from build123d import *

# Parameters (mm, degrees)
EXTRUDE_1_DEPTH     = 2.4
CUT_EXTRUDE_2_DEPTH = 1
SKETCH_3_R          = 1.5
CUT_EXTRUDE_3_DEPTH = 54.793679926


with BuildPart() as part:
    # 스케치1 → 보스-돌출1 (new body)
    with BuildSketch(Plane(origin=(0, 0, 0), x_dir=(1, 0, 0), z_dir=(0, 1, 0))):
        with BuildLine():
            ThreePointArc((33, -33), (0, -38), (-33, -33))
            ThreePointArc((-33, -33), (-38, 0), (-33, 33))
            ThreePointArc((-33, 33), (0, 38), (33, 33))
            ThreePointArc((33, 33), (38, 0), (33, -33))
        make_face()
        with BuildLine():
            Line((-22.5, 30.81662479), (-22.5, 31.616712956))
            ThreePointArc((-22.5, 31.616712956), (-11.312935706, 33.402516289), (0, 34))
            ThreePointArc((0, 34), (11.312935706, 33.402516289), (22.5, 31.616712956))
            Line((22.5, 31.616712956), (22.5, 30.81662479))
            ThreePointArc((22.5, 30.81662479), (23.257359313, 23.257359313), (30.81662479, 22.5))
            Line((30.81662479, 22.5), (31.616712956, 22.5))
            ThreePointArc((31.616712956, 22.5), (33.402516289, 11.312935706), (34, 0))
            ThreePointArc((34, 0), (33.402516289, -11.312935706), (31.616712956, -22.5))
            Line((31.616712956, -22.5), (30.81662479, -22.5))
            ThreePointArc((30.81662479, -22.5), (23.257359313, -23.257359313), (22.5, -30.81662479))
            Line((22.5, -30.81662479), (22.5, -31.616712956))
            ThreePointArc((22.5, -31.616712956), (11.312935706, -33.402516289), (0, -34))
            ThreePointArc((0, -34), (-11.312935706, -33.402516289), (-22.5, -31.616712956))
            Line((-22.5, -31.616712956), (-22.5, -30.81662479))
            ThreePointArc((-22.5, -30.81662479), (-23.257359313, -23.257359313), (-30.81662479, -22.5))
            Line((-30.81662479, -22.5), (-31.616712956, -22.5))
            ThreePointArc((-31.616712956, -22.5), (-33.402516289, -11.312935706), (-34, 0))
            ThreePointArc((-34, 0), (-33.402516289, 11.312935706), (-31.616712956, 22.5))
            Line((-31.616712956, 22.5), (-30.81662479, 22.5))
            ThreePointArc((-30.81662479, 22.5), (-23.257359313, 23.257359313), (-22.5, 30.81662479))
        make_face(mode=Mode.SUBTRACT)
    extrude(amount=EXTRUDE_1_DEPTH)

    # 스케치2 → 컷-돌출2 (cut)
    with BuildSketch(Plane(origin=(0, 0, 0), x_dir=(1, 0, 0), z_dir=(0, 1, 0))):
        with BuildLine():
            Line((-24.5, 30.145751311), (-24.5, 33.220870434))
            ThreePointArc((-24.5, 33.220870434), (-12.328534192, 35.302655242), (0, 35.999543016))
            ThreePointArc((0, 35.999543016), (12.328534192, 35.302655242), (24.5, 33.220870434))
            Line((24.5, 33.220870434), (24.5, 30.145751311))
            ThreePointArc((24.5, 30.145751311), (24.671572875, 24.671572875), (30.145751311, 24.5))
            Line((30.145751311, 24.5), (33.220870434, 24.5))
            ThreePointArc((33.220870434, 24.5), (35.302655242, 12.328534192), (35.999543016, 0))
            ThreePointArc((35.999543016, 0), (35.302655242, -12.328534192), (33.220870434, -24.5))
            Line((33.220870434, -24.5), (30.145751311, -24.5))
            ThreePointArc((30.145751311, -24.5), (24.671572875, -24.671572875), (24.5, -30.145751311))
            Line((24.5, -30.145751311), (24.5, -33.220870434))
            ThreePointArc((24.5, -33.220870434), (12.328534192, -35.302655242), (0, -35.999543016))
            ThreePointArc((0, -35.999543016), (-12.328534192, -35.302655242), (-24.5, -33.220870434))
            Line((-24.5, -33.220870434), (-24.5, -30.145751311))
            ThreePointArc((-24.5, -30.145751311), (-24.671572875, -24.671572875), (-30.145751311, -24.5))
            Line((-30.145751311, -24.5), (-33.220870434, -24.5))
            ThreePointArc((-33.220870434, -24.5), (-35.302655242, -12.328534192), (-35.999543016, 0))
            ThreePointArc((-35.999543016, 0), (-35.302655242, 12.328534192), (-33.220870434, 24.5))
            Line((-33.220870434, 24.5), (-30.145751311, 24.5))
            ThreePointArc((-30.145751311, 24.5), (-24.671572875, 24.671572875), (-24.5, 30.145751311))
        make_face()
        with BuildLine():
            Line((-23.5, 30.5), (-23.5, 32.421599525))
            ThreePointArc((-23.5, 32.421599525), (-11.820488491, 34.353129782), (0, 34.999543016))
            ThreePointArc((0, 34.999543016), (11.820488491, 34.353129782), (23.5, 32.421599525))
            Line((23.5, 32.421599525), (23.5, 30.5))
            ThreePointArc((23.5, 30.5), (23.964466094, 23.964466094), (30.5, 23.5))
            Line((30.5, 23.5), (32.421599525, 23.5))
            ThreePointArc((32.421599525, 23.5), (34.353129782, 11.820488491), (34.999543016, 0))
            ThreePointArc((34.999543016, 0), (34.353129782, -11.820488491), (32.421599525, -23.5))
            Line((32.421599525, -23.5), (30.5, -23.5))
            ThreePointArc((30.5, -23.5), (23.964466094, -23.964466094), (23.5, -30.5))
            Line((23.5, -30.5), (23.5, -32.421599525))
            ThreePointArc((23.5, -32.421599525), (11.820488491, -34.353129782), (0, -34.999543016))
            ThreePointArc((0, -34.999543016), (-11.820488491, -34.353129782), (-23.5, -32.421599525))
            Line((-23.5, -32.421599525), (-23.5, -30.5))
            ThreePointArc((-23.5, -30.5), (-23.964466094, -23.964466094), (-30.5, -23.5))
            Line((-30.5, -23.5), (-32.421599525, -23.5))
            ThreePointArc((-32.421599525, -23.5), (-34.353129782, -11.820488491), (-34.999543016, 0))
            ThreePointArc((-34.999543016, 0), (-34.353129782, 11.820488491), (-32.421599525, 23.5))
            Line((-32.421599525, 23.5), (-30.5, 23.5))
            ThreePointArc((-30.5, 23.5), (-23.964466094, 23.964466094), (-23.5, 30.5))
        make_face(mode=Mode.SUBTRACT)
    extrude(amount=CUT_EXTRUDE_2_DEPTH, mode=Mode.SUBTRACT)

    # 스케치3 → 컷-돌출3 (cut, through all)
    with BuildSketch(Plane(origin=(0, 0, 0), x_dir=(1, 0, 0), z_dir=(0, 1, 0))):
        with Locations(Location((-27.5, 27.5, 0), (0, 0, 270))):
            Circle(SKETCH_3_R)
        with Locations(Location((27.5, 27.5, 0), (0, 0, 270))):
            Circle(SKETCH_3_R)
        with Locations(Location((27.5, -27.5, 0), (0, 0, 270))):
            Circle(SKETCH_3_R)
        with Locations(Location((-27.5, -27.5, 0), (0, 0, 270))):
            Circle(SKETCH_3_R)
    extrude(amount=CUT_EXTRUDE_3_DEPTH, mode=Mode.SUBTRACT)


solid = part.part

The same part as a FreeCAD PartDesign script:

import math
import FreeCAD as App
import Part
import Sketcher

V = App.Vector
Q = App.Units.Quantity

doc = App.newDocument("Part")
body = doc.addObject("PartDesign::Body", "Body")

# Sketch on XZ plane
sketch1 = body.newObject("Sketcher::SketchObject", "Sketch")
sketch1.AttachmentSupport = (doc.getObject("XZ_Plane"), [""])
sketch1.MapMode = "FlatFace"
sketch1.addGeometry([
    Part.ArcOfCircle(Part.Circle(V(0, -73.4, 0), V(0, 0, 1), 111.4), math.radians(72.768704), math.radians(107.231296)),  # 0
    Part.ArcOfCircle(Part.Circle(V(-73.4, 0, 0), V(0, 0, 1), 111.4), math.radians(-17.231296), math.radians(17.231296)),  # 1
    Part.ArcOfCircle(Part.Circle(V(0, 73.4, 0), V(0, 0, 1), 111.4), math.radians(-107.231296), math.radians(-72.768704)),  # 2
    Part.ArcOfCircle(Part.Circle(V(73.4, 0, 0), V(0, 0, 1), 111.4), math.radians(162.768704), math.radians(197.231296)),  # 3
    Part.LineSegment(V(-22.5, -30.816625, 0), V(-22.5, -31.616713, 0)),  # 4
    Part.ArcOfCircle(Part.Circle(V(0, 73.4, 0), V(0, 0, 1), 107.4), math.radians(-102.092889), math.radians(-90)),  # 5
    Part.ArcOfCircle(Part.Circle(V(0, 73.4, 0), V(0, 0, 1), 107.4), math.radians(-90), math.radians(-77.907111)),  # 6
    Part.LineSegment(V(22.5, -31.616713, 0), V(22.5, -30.816625, 0)),  # 7
    Part.ArcOfCircle(Part.Circle(V(27.5, -27.5, 0), V(0, 0, 1), 6), math.radians(56.44269), math.radians(213.55731)),  # 8
    Part.LineSegment(V(30.816625, -22.5, 0), V(31.616713, -22.5, 0)),  # 9
    Part.ArcOfCircle(Part.Circle(V(-73.4, 0, 0), V(0, 0, 1), 107.4), math.radians(-12.092889), math.radians(0)),  # 10
    Part.ArcOfCircle(Part.Circle(V(-73.4, 0, 0), V(0, 0, 1), 107.4), math.radians(0), math.radians(12.092889)),  # 11
    Part.LineSegment(V(31.616713, 22.5, 0), V(30.816625, 22.5, 0)),  # 12
    Part.ArcOfCircle(Part.Circle(V(27.5, 27.5, 0), V(0, 0, 1), 6), math.radians(146.44269), math.radians(303.55731)),  # 13
    Part.LineSegment(V(22.5, 30.816625, 0), V(22.5, 31.616713, 0)),  # 14
    Part.ArcOfCircle(Part.Circle(V(0, -73.4, 0), V(0, 0, 1), 107.4), math.radians(77.907111), math.radians(90)),  # 15
    Part.ArcOfCircle(Part.Circle(V(0, -73.4, 0), V(0, 0, 1), 107.4), math.radians(90), math.radians(102.092889)),  # 16
    Part.LineSegment(V(-22.5, 31.616713, 0), V(-22.5, 30.816625, 0)),  # 17
    Part.ArcOfCircle(Part.Circle(V(-27.5, 27.5, 0), V(0, 0, 1), 6), math.radians(-123.55731), math.radians(33.55731)),  # 18
    Part.LineSegment(V(-30.816625, 22.5, 0), V(-31.616713, 22.5, 0)),  # 19
    Part.ArcOfCircle(Part.Circle(V(73.4, 0, 0), V(0, 0, 1), 107.4), math.radians(167.907111), math.radians(180)),  # 20
    Part.ArcOfCircle(Part.Circle(V(73.4, 0, 0), V(0, 0, 1), 107.4), math.radians(-180), math.radians(-167.907111)),  # 21
    Part.LineSegment(V(-31.616713, -22.5, 0), V(-30.816625, -22.5, 0)),  # 22
    Part.ArcOfCircle(Part.Circle(V(-27.5, -27.5, 0), V(0, 0, 1), 6), math.radians(-33.55731), math.radians(123.55731)),  # 23
], False)
sketch1.addConstraint([
    Sketcher.Constraint("Coincident", 0, 1, 1, 2),
    Sketcher.Constraint("Coincident", 1, 1, 2, 2),
    Sketcher.Constraint("Coincident", 2, 1, 3, 2),
    Sketcher.Constraint("Coincident", 3, 1, 0, 2),
    Sketcher.Constraint("Coincident", 4, 2, 5, 1),
    Sketcher.Constraint("Tangent", 5, 2, 6, 1),
    Sketcher.Constraint("Coincident", 6, 2, 7, 1),
    Sketcher.Constraint("Coincident", 7, 2, 8, 2),
    Sketcher.Constraint("Coincident", 8, 1, 9, 1),
    Sketcher.Constraint("Coincident", 9, 2, 10, 1),
    Sketcher.Constraint("Tangent", 10, 2, 11, 1),
    Sketcher.Constraint("Coincident", 11, 2, 12, 1),
    Sketcher.Constraint("Coincident", 12, 2, 13, 2),
    Sketcher.Constraint("Coincident", 13, 1, 14, 1),
    Sketcher.Constraint("Coincident", 14, 2, 15, 1),
    Sketcher.Constraint("Tangent", 15, 2, 16, 1),
    Sketcher.Constraint("Coincident", 16, 2, 17, 1),
    Sketcher.Constraint("Coincident", 17, 2, 18, 2),
    Sketcher.Constraint("Coincident", 18, 1, 19, 1),
    Sketcher.Constraint("Coincident", 19, 2, 20, 1),
    Sketcher.Constraint("Tangent", 20, 2, 21, 1),
    Sketcher.Constraint("Coincident", 21, 2, 22, 1),
    Sketcher.Constraint("Coincident", 22, 2, 23, 2),
    Sketcher.Constraint("Coincident", 23, 1, 4, 1),
    Sketcher.Constraint("Vertical", 4),
    Sketcher.Constraint("Vertical", 7),
    Sketcher.Constraint("Horizontal", 9),
    Sketcher.Constraint("Horizontal", 12),
    Sketcher.Constraint("Vertical", 14),
    Sketcher.Constraint("Vertical", 17),
    Sketcher.Constraint("Horizontal", 19),
    Sketcher.Constraint("Horizontal", 22),
    Sketcher.Constraint("Coincident", 5, 3, 2, 3),
    Sketcher.Constraint("Coincident", 10, 3, 1, 3),
    Sketcher.Constraint("Coincident", 15, 3, 0, 3),
    Sketcher.Constraint("Coincident", 20, 3, 3, 3),
    Sketcher.Constraint("Equal", 0, 1),
    Sketcher.Constraint("Equal", 1, 2),
    Sketcher.Constraint("Equal", 2, 3),
    Sketcher.Constraint("Equal", 5, 6),
    Sketcher.Constraint("Equal", 6, 10),
    Sketcher.Constraint("Equal", 10, 11),
    Sketcher.Constraint("Equal", 8, 13),
    Sketcher.Constraint("Equal", 11, 15),
    Sketcher.Constraint("Equal", 15, 16),
    Sketcher.Constraint("Equal", 13, 18),
    Sketcher.Constraint("Equal", 16, 20),
    Sketcher.Constraint("Equal", 20, 21),
    Sketcher.Constraint("Equal", 18, 23),
    Sketcher.Constraint("Symmetric", 0, 3, 2, 3, -1, 1),
    Sketcher.Constraint("Symmetric", 1, 3, 3, 3, -1, 1),
    Sketcher.Constraint("Symmetric", 8, 3, 18, 3, -1, 1),
    Sketcher.Constraint("Symmetric", 13, 3, 23, 3, -1, 1),
    Sketcher.Constraint("Symmetric", 13, 3, 18, 3, -2),
    Sketcher.Constraint("Symmetric", 1, 1, 2, 1, -2),
    Sketcher.Constraint("PointOnObject", 5, 2, -2),
    Sketcher.Constraint("PointOnObject", 10, 2, -1),
    Sketcher.Constraint("PointOnObject", 15, 2, -2),
    Sketcher.Constraint("PointOnObject", 20, 2, -1),
    Sketcher.Constraint("Horizontal", 4, 2, 6, 2),
    Sketcher.Constraint("Horizontal", 14, 2, 16, 2),
    Sketcher.Constraint("Horizontal", 12, 2, 18, 1),
    Sketcher.Constraint("Horizontal", 9, 2, 21, 2),
    Sketcher.Constraint("Vertical", 9, 2, 11, 2),
    Sketcher.Constraint("Vertical", 7, 2, 13, 1),
    Sketcher.Constraint("Equal", 22, 4),
    Sketcher.Constraint("Radius", 8, Q("6 mm")),
    Sketcher.Constraint("Radius", 0, Q("111.4 mm")),
    Sketcher.Constraint("Radius", 5, Q("107.4 mm")),
    Sketcher.Constraint("DistanceX", -1, 1, 0, 1, Q("33 mm")),
    Sketcher.Constraint("DistanceY", -1, 1, 0, 1, Q("33 mm")),
    Sketcher.Constraint("DistanceY", 8, 3, 13, 3, Q("55 mm")),
    Sketcher.Constraint("DistanceX", 23, 3, 4, 2, Q("5 mm")),
    Sketcher.Constraint("DistanceX", 4, 2, 6, 2, Q("45 mm")),
])
pad1 = body.newObject("PartDesign::Pad", "Pad")
pad1.Profile = sketch1
pad1.Length = 2.4
pad1.Reversed = True

# Sketch on XZ plane
sketch2 = body.newObject("Sketcher::SketchObject", "Sketch001")
sketch2.AttachmentSupport = (doc.getObject("XZ_Plane"), [""])
sketch2.MapMode = "FlatFace"
sketch2.addGeometry([
    Part.LineSegment(V(-24.5, -33.22087, 0), V(-24.5, -30.145751, 0)),  # 0
    Part.ArcOfCircle(Part.Circle(V(-27.5, -27.5, 0), V(0, 0, 1), 4), math.radians(-41.409622), math.radians(131.409622)),  # 1
    Part.LineSegment(V(-30.145751, -24.5, 0), V(-33.22087, -24.5, 0)),  # 2
    Part.ArcOfCircle(Part.Circle(V(73.4, 0, 0), V(0, 0, 1), 109.399543), math.radians(-180), math.radians(-167.058873)),  # 3
    Part.ArcOfCircle(Part.Circle(V(73.4, 0, 0), V(0, 0, 1), 109.399543), math.radians(167.058873), math.radians(180)),  # 4
    Part.LineSegment(V(-33.22087, 24.5, 0), V(-30.145751, 24.5, 0)),  # 5
    Part.ArcOfCircle(Part.Circle(V(-27.5, 27.5, 0), V(0, 0, 1), 4), math.radians(-131.409622), math.radians(41.409622)),  # 6
    Part.LineSegment(V(-24.5, 30.145751, 0), V(-24.5, 33.22087, 0)),  # 7
    Part.ArcOfCircle(Part.Circle(V(0, -73.4, 0), V(0, 0, 1), 109.399543), math.radians(90), math.radians(102.941127)),  # 8
    Part.ArcOfCircle(Part.Circle(V(0, -73.4, 0), V(0, 0, 1), 109.399543), math.radians(77.058873), math.radians(90)),  # 9
    Part.LineSegment(V(24.5, 33.22087, 0), V(24.5, 30.145751, 0)),  # 10
    Part.ArcOfCircle(Part.Circle(V(27.5, 27.5, 0), V(0, 0, 1), 4), math.radians(138.590378), math.radians(311.409622)),  # 11
    Part.LineSegment(V(30.145751, 24.5, 0), V(33.22087, 24.5, 0)),  # 12
    Part.ArcOfCircle(Part.Circle(V(-73.4, 0, 0), V(0, 0, 1), 109.399543), math.radians(0), math.radians(12.941127)),  # 13
    Part.ArcOfCircle(Part.Circle(V(-73.4, 0, 0), V(0, 0, 1), 109.399543), math.radians(-12.941127), math.radians(0)),  # 14
    Part.LineSegment(V(33.22087, -24.5, 0), V(30.145751, -24.5, 0)),  # 15
    Part.ArcOfCircle(Part.Circle(V(27.5, -27.5, 0), V(0, 0, 1), 4), math.radians(48.590378), math.radians(221.409622)),  # 16
    Part.LineSegment(V(24.5, -30.145751, 0), V(24.5, -33.22087, 0)),  # 17
    Part.ArcOfCircle(Part.Circle(V(0, 73.4, 0), V(0, 0, 1), 109.399543), math.radians(-90), math.radians(-77.058873)),  # 18
    Part.ArcOfCircle(Part.Circle(V(0, 73.4, 0), V(0, 0, 1), 109.399543), math.radians(-102.941127), math.radians(-90)),  # 19
    Part.LineSegment(V(-23.5, -30.5, 0), V(-23.5, -32.4216, 0)),  # 20
    Part.ArcOfCircle(Part.Circle(V(0, 73.4, 0), V(0, 0, 1), 108.399543), math.radians(-102.520598), math.radians(-90)),  # 21
    Part.ArcOfCircle(Part.Circle(V(0, 73.4, 0), V(0, 0, 1), 108.399543), math.radians(-90), math.radians(-77.479402)),  # 22
    Part.LineSegment(V(23.5, -32.4216, 0), V(23.5, -30.5, 0)),  # 23
    Part.ArcOfCircle(Part.Circle(V(27.5, -27.5, 0), V(0, 0, 1), 5), math.radians(53.130102), math.radians(216.869898)),  # 24
    Part.LineSegment(V(30.5, -23.5, 0), V(32.4216, -23.5, 0)),  # 25
    Part.ArcOfCircle(Part.Circle(V(-73.4, 0, 0), V(0, 0, 1), 108.399543), math.radians(-12.520598), math.radians(0)),  # 26
    Part.ArcOfCircle(Part.Circle(V(-73.4, 0, 0), V(0, 0, 1), 108.399543), math.radians(0), math.radians(12.520598)),  # 27
    Part.LineSegment(V(32.4216, 23.5, 0), V(30.5, 23.5, 0)),  # 28
    Part.ArcOfCircle(Part.Circle(V(27.5, 27.5, 0), V(0, 0, 1), 5), math.radians(143.130102), math.radians(306.869898)),  # 29
    Part.LineSegment(V(23.5, 30.5, 0), V(23.5, 32.4216, 0)),  # 30
    Part.ArcOfCircle(Part.Circle(V(0, -73.4, 0), V(0, 0, 1), 108.399543), math.radians(77.479402), math.radians(90)),  # 31
    Part.ArcOfCircle(Part.Circle(V(0, -73.4, 0), V(0, 0, 1), 108.399543), math.radians(90), math.radians(102.520598)),  # 32
    Part.LineSegment(V(-23.5, 32.4216, 0), V(-23.5, 30.5, 0)),  # 33
    Part.ArcOfCircle(Part.Circle(V(-27.5, 27.5, 0), V(0, 0, 1), 5), math.radians(-126.869898), math.radians(36.869898)),  # 34
    Part.LineSegment(V(-30.5, 23.5, 0), V(-32.4216, 23.5, 0)),  # 35
    Part.ArcOfCircle(Part.Circle(V(73.4, 0, 0), V(0, 0, 1), 108.399543), math.radians(167.479402), math.radians(180)),  # 36
    Part.ArcOfCircle(Part.Circle(V(73.4, 0, 0), V(0, 0, 1), 108.399543), math.radians(-180), math.radians(-167.479402)),  # 37
    Part.LineSegment(V(-32.4216, -23.5, 0), V(-30.5, -23.5, 0)),  # 38
    Part.ArcOfCircle(Part.Circle(V(-27.5, -27.5, 0), V(0, 0, 1), 5), math.radians(-36.869898), math.radians(126.869898)),  # 39
], False)
sketch2.addConstraint([
    Sketcher.Constraint("Coincident", 0, 2, 1, 1),
    Sketcher.Constraint("Coincident", 1, 2, 2, 1),
    Sketcher.Constraint("Coincident", 2, 2, 3, 2),
    Sketcher.Constraint("Tangent", 3, 1, 4, 2),
    Sketcher.Constraint("Coincident", 4, 1, 5, 1),
    Sketcher.Constraint("Coincident", 5, 2, 6, 1),
    Sketcher.Constraint("Coincident", 6, 2, 7, 1),
    Sketcher.Constraint("Coincident", 7, 2, 8, 2),
    Sketcher.Constraint("Tangent", 8, 1, 9, 2),
    Sketcher.Constraint("Coincident", 9, 1, 10, 1),
    Sketcher.Constraint("Coincident", 10, 2, 11, 1),
    Sketcher.Constraint("Coincident", 11, 2, 12, 1),
    Sketcher.Constraint("Coincident", 12, 2, 13, 2),
    Sketcher.Constraint("Tangent", 13, 1, 14, 2),
    Sketcher.Constraint("Coincident", 14, 1, 15, 1),
    Sketcher.Constraint("Coincident", 15, 2, 16, 1),
    Sketcher.Constraint("Coincident", 16, 2, 17, 1),
    Sketcher.Constraint("Coincident", 17, 2, 18, 2),
    Sketcher.Constraint("Tangent", 18, 1, 19, 2),
    Sketcher.Constraint("Coincident", 19, 1, 0, 1),
    Sketcher.Constraint("Coincident", 20, 2, 21, 1),
    Sketcher.Constraint("Tangent", 21, 2, 22, 1),
    Sketcher.Constraint("Coincident", 22, 2, 23, 1),
    Sketcher.Constraint("Coincident", 23, 2, 24, 2),
    Sketcher.Constraint("Coincident", 24, 1, 25, 1),
    Sketcher.Constraint("Coincident", 25, 2, 26, 1),
    Sketcher.Constraint("Tangent", 26, 2, 27, 1),
    Sketcher.Constraint("Coincident", 27, 2, 28, 1),
    Sketcher.Constraint("Coincident", 28, 2, 29, 2),
    Sketcher.Constraint("Coincident", 29, 1, 30, 1),
    Sketcher.Constraint("Coincident", 30, 2, 31, 1),
    Sketcher.Constraint("Tangent", 31, 2, 32, 1),
    Sketcher.Constraint("Coincident", 32, 2, 33, 1),
    Sketcher.Constraint("Coincident", 33, 2, 34, 2),
    Sketcher.Constraint("Coincident", 34, 1, 35, 1),
    Sketcher.Constraint("Coincident", 35, 2, 36, 1),
    Sketcher.Constraint("Tangent", 36, 2, 37, 1),
    Sketcher.Constraint("Coincident", 37, 2, 38, 1),
    Sketcher.Constraint("Coincident", 38, 2, 39, 2),
    Sketcher.Constraint("Coincident", 39, 1, 20, 1),
    Sketcher.Constraint("Vertical", 0),
    Sketcher.Constraint("Horizontal", 2),
    Sketcher.Constraint("Horizontal", 5),
    Sketcher.Constraint("Vertical", 7),
    Sketcher.Constraint("Vertical", 10),
    Sketcher.Constraint("Horizontal", 12),
    Sketcher.Constraint("Horizontal", 15),
    Sketcher.Constraint("Vertical", 17),
    Sketcher.Constraint("Vertical", 20),
    Sketcher.Constraint("Vertical", 23),
    Sketcher.Constraint("Horizontal", 25),
    Sketcher.Constraint("Horizontal", 28),
    Sketcher.Constraint("Vertical", 30),
    Sketcher.Constraint("Vertical", 33),
    Sketcher.Constraint("Horizontal", 35),
    Sketcher.Constraint("Horizontal", 38),
    Sketcher.Constraint("Coincident", 21, 3, 18, 3),
    Sketcher.Constraint("Coincident", 24, 3, 16, 3),
    Sketcher.Constraint("Coincident", 26, 3, 13, 3),
    Sketcher.Constraint("Coincident", 29, 3, 11, 3),
    Sketcher.Constraint("Coincident", 31, 3, 8, 3),
    Sketcher.Constraint("Coincident", 34, 3, 6, 3),
    Sketcher.Constraint("Coincident", 36, 3, 3, 3),
    Sketcher.Constraint("Coincident", 39, 3, 1, 3),
    Sketcher.Constraint("Equal", 3, 4),
    Sketcher.Constraint("Equal", 1, 6),
    Sketcher.Constraint("Equal", 4, 8),
    Sketcher.Constraint("Equal", 8, 9),
    Sketcher.Constraint("Equal", 6, 11),
    Sketcher.Constraint("Equal", 9, 13),
    Sketcher.Constraint("Equal", 13, 14),
    Sketcher.Constraint("Equal", 11, 16),
    Sketcher.Constraint("Equal", 14, 18),
    Sketcher.Constraint("Equal", 18, 19),
    Sketcher.Constraint("Equal", 21, 22),
    Sketcher.Constraint("Equal", 22, 26),
    Sketcher.Constraint("Equal", 26, 27),
    Sketcher.Constraint("Equal", 24, 29),
    Sketcher.Constraint("Equal", 27, 31),
    Sketcher.Constraint("Equal", 31, 32),
    Sketcher.Constraint("Equal", 29, 34),
    Sketcher.Constraint("Equal", 32, 36),
    Sketcher.Constraint("Equal", 36, 37),
    Sketcher.Constraint("Equal", 34, 39),
    Sketcher.Constraint("Symmetric", 1, 3, 11, 3, -1, 1),
    Sketcher.Constraint("Symmetric", 3, 3, 13, 3, -1, 1),
    Sketcher.Constraint("Symmetric", 6, 3, 16, 3, -1, 1),
    Sketcher.Constraint("Symmetric", 8, 3, 18, 3, -1, 1),
    Sketcher.Constraint("Symmetric", 6, 3, 11, 3, -2),
    Sketcher.Constraint("Symmetric", 7, 2, 9, 1, -2),
    Sketcher.Constraint("Symmetric", 4, 1, 12, 2, -2),
    Sketcher.Constraint("PointOnObject", 3, 1, -1),
    Sketcher.Constraint("PointOnObject", 8, 1, -2),
    Sketcher.Constraint("PointOnObject", 13, 1, -1),
    Sketcher.Constraint("PointOnObject", 18, 1, -2),
    Sketcher.Constraint("PointOnObject", 21, 2, -2),
    Sketcher.Constraint("PointOnObject", 26, 2, -1),
    Sketcher.Constraint("PointOnObject", 31, 2, -2),
    Sketcher.Constraint("PointOnObject", 36, 2, -1),
    Sketcher.Constraint("Horizontal", 2, 2, 14, 1),
    Sketcher.Constraint("Horizontal", 0, 2, 16, 2),
    Sketcher.Constraint("Horizontal", 20, 2, 22, 2),
    Sketcher.Constraint("Horizontal", 30, 2, 32, 2),
    Sketcher.Constraint("Horizontal", 28, 2, 34, 1),
    Sketcher.Constraint("Horizontal", 25, 2, 37, 2),
    Sketcher.Constraint("Vertical", 2, 2, 4, 1),
    Sketcher.Constraint("Vertical", 0, 2, 6, 2),
    Sketcher.Constraint("Vertical", 25, 2, 27, 2),
    Sketcher.Constraint("Vertical", 23, 2, 29, 1),
    Sketcher.Constraint("Equal", 15, 0),
    Sketcher.Constraint("Equal", 38, 20),
    Sketcher.Constraint("Radius", 1, Q("4 mm")),
    Sketcher.Constraint("Radius", 24, Q("5 mm")),
    Sketcher.Constraint("DistanceX", 1, 3, -1, 1, Q("27.5 mm")),
    Sketcher.Constraint("DistanceY", 1, 3, -1, 1, Q("27.5 mm")),
    Sketcher.Constraint("DistanceX", -1, 1, 3, 3, Q("73.4 mm")),
    Sketcher.Constraint("DistanceY", 8, 3, -1, 1, Q("73.4 mm")),
    Sketcher.Constraint("DistanceX", 0, 2, -1, 1, Q("24.5 mm")),
    Sketcher.Constraint("DistanceX", 20, 2, -1, 1, Q("23.5 mm")),
    Sketcher.Constraint("DistanceX", 25, 1, 25, 2, Q("1.9216 mm")),
    Sketcher.Constraint("Radius", 3, Q("109.399543 mm")),
])
pocket1 = body.newObject("PartDesign::Pocket", "Pocket")
pocket1.Profile = sketch2
pocket1.Length = 1

# Sketch on XZ plane
sketch3 = body.newObject("Sketcher::SketchObject", "Sketch002")
sketch3.AttachmentSupport = (doc.getObject("XZ_Plane"), [""])
sketch3.MapMode = "FlatFace"
sketch3.addGeometry([
    Part.Circle(V(-27.5, -27.5, 0), V(0, 0, 1), 1.5),
    Part.Circle(V(27.5, -27.5, 0), V(0, 0, 1), 1.5),
    Part.Circle(V(27.5, 27.5, 0), V(0, 0, 1), 1.5),
    Part.Circle(V(-27.5, 27.5, 0), V(0, 0, 1), 1.5),
], False)
sketch3.addConstraint([
    Sketcher.Constraint("Equal", 0, 1),
    Sketcher.Constraint("Equal", 1, 2),
    Sketcher.Constraint("Equal", 2, 3),
    Sketcher.Constraint("Symmetric", 0, 3, 2, 3, -1, 1),
    Sketcher.Constraint("Symmetric", 1, 3, 3, 3, -1, 1),
    Sketcher.Constraint("Symmetric", 0, 3, 1, 3, -2),
    Sketcher.Constraint("Diameter", 0, Q("3 mm")),
    Sketcher.Constraint("DistanceX", 0, 3, 1, 3, Q("55 mm")),
    Sketcher.Constraint("DistanceY", 1, 3, 2, 3, Q("55 mm")),
])
pocket2 = body.newObject("PartDesign::Pocket", "Pocket001")
pocket2.Profile = sketch3
pocket2.Type = "ThroughAll"

doc.recompute()
